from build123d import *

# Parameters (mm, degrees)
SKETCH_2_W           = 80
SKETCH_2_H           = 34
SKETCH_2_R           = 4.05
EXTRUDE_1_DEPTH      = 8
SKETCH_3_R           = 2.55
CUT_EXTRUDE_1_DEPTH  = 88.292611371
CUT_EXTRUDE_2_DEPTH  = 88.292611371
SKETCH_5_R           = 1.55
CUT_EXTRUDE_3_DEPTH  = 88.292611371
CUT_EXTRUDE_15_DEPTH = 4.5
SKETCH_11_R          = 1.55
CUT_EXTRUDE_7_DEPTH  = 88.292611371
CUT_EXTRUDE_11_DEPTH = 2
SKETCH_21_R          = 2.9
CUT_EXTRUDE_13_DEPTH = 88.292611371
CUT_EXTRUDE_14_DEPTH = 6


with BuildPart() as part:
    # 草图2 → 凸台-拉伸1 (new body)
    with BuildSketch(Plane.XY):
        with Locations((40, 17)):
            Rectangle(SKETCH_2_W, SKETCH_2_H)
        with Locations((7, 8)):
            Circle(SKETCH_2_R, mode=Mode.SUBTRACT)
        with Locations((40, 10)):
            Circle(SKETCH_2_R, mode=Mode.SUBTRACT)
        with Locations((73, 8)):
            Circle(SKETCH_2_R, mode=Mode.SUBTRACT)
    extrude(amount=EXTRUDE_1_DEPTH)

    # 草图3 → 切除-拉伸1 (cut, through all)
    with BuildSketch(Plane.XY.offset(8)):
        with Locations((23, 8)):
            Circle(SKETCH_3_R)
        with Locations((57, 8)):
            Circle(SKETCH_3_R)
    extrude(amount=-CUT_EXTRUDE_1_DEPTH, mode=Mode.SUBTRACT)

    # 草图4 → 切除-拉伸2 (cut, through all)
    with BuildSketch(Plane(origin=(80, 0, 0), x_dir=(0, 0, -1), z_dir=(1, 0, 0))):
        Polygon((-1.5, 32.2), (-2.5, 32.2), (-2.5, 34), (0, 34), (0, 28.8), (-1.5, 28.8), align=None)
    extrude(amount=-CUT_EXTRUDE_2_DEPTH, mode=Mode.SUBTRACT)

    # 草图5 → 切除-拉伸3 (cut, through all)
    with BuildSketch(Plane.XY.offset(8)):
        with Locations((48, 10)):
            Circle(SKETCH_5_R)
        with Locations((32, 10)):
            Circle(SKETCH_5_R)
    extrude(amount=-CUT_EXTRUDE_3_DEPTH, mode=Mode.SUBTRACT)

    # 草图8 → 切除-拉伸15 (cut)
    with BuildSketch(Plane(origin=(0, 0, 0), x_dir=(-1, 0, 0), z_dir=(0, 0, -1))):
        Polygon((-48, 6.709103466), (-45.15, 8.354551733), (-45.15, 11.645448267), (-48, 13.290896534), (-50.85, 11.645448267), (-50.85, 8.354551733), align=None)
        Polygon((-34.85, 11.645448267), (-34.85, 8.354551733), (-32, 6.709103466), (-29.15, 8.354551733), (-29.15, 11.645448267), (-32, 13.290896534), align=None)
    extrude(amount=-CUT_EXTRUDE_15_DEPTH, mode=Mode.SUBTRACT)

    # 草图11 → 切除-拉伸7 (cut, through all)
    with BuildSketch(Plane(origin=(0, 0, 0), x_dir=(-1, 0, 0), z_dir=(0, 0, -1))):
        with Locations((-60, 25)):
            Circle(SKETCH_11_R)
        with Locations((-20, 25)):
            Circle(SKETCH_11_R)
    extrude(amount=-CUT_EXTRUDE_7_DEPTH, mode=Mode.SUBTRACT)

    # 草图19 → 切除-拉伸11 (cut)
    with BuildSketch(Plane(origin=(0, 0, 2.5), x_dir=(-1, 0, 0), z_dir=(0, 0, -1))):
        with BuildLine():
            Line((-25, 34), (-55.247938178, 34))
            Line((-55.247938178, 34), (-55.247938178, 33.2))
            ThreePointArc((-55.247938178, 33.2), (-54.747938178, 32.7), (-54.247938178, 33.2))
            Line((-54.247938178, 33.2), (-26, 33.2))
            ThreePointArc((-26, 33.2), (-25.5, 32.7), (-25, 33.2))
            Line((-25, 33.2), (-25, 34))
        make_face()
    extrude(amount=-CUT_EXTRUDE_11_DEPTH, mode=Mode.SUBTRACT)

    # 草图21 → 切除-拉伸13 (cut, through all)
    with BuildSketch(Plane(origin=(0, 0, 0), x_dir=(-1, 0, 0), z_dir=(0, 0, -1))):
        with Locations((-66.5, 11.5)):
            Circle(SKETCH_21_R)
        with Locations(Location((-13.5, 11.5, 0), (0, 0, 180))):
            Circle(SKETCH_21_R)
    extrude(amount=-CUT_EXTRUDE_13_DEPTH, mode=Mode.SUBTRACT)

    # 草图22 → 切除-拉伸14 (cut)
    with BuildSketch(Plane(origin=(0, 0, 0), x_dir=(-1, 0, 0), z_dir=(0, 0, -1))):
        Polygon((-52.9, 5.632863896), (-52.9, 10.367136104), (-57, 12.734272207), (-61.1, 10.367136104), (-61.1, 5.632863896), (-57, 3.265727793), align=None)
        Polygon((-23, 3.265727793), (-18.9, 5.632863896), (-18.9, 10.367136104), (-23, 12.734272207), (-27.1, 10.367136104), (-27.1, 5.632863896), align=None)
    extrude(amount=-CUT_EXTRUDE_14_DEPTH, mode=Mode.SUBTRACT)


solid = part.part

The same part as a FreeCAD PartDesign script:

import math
import FreeCAD as App
import Part
import Sketcher
Q = App.Units.Quantity

doc = App.newDocument("Part")
params = doc.addObject("Spreadsheet::Sheet", "Params")
for row, (alias, value) in enumerate([
    ("sketch1_diameter", "8.1 mm"),
    ("sketch1_width", "80 mm"),
    ("sketch1_height", "34 mm"),
    ("pad1_length", "8 mm"),
    ("sketch2_diameter", "5.1 mm"),
    ("sketch3_height", "1 mm"),
    ("sketch3_width", "3.4 mm"),
    ("sketch3_width2", "5.2 mm"),
    ("sketch3_height2", "1.5 mm"),
    ("sketch4_diameter", "3.1 mm"),
    ("pocket4_length", "4.5 mm"),
    ("sketch6_diameter", "3.1 mm"),
    ("sketch7_radius", "0.5 mm"),
    ("sketch7_height", "0.8 mm"),
    ("pocket6_length", "2 mm"),
    ("sketch8_diameter", "5.8 mm"),
    ("pocket8_length", "6 mm"),
], start=1):
    params.set(f"A{row}", alias)
    params.set(f"B{row}", "=" + value)
    params.setAlias(f"B{row}", alias)

body = doc.addObject("PartDesign::Body", "Body")

sketch1 = doc.addObject("Sketcher::SketchObject", "Sketch")
body.addObject(sketch1)
sketch1.AttachmentSupport = (doc.XY_Plane, [""])
sketch1.MapMode = "FlatFace"
sketch1.addGeometry([
    Part.LineSegment(App.Vector(0, 34, 0), App.Vector(0, 0, 0)),
    Part.LineSegment(App.Vector(0, 0, 0), App.Vector(80, 0, 0)),
    Part.LineSegment(App.Vector(80, 0, 0), App.Vector(80, 34, 0)),
    Part.LineSegment(App.Vector(80, 34, 0), App.Vector(0, 34, 0)),
    Part.Circle(App.Vector(7, 8, 0), App.Vector(0, 0, 1), 4),
    Part.Circle(App.Vector(73, 8, 0), App.Vector(0, 0, 1), 4),
    Part.Circle(App.Vector(40, 10, 0), App.Vector(0, 0, 1), 4),
], False)
sketch1.addConstraint([
    Sketcher.Constraint("Coincident", 0, 2, 1, 1),
    Sketcher.Constraint("Coincident", 1, 2, 2, 1),
    Sketcher.Constraint("Coincident", 2, 2, 3, 1),
    Sketcher.Constraint("Coincident", 3, 2, 0, 1),
    Sketcher.Constraint("Vertical", 0),
    Sketcher.Constraint("Horizontal", 1),
    Sketcher.Constraint("Vertical", 2),
    Sketcher.Constraint("Horizontal", 3),
    Sketcher.Constraint("Coincident", 0, 2, -1, 1),
    Sketcher.Constraint("Equal", 4, 5),
    Sketcher.Constraint("Equal", 5, 6),
    Sketcher.Constraint("Horizontal", 4, 3, 5, 3),
    Sketcher.Constraint("Diameter", 4, 8.1),
    Sketcher.Constraint("DistanceX", 1, 1, 1, 2, 80.0),
    Sketcher.Constraint("DistanceY", 0, 2, 0, 1, 34.0),
    Sketcher.Constraint("DistanceX", -1, 1, 4, 3, 7.0),
    Sketcher.Constraint("DistanceY", -1, 1, 4, 3, 8.0),
    Sketcher.Constraint("DistanceX", -1, 1, 5, 3, 73.0),
    Sketcher.Constraint("DistanceX", -1, 1, 6, 3, 40.0),
    Sketcher.Constraint("DistanceY", -1, 1, 6, 3, 10.0),
])
sketch1.setExpression("Constraints[12]", "Params.sketch1_diameter")
sketch1.setExpression("Constraints[13]", "Params.sketch1_width")
sketch1.setExpression("Constraints[14]", "Params.sketch1_height")
pad1 = doc.addObject("PartDesign::Pad", "Pad")
body.addObject(pad1)
pad1.Profile = sketch1
pad1.setExpression("Length", "Params.pad1_length")

sketch2 = doc.addObject("Sketcher::SketchObject", "Sketch001")
body.addObject(sketch2)
sketch2.AttachmentSupport = (doc.XY_Plane, [""])
sketch2.MapMode = "FlatFace"
sketch2.AttachmentOffset = App.Placement(App.Vector(0, 0, 8), App.Rotation())
sketch2.addGeometry([
    Part.Circle(App.Vector(23, 8, 0), App.Vector(0, 0, 1), 2.5),
    Part.Circle(App.Vector(57, 8, 0), App.Vector(0, 0, 1), 2.5),
], False)
sketch2.addConstraint([
    Sketcher.Constraint("Equal", 0, 1),
    Sketcher.Constraint("Horizontal", 0, 3, 1, 3),
    Sketcher.Constraint("Diameter", 0, 5.1),
    Sketcher.Constraint("DistanceX", -1, 1, 0, 3, 23.0),
    Sketcher.Constraint("DistanceY", -1, 1, 0, 3, 8.0),
    Sketcher.Constraint("DistanceX", -1, 1, 1, 3, 57.0),
])
sketch2.setExpression("Constraints[2]", "Params.sketch2_diameter")
pocket1 = doc.addObject("PartDesign::Pocket", "Pocket")
body.addObject(pocket1)
pocket1.Profile = sketch2
pocket1.Type = "ThroughAll"

sketch3 = doc.addObject("Sketcher::SketchObject", "Sketch002")
body.addObject(sketch3)
sketch3.AttachmentSupport = (doc.YZ_Plane, [""])
sketch3.MapMode = "FlatFace"
sketch3.AttachmentOffset = App.Placement(App.Vector(0, 0, 80), App.Rotation())
sketch3.addGeometry([
    Part.LineSegment(App.Vector(32.2, 2.5, 0), App.Vector(32.2, 1.5, 0)),
    Part.LineSegment(App.Vector(32.2, 1.5, 0), App.Vector(28.8, 1.5, 0)),
    Part.LineSegment(App.Vector(28.8, 1.5, 0), App.Vector(28.8, 0, 0)),
    Part.LineSegment(App.Vector(28.8, 0, 0), App.Vector(34, 0, 0)),
    Part.LineSegment(App.Vector(34, 0, 0), App.Vector(34, 2.5, 0)),
    Part.LineSegment(App.Vector(34, 2.5, 0), App.Vector(32.2, 2.5, 0)),
], False)
sketch3.addConstraint([
    Sketcher.Constraint("Coincident", 0, 2, 1, 1),
    Sketcher.Constraint("Coincident", 1, 2, 2, 1),
    Sketcher.Constraint("Coincident", 2, 2, 3, 1),
    Sketcher.Constraint("Coincident", 3, 2, 4, 1),
    Sketcher.Constraint("Coincident", 4, 2, 5, 1),
    Sketcher.Constraint("Coincident", 5, 2, 0, 1),
    Sketcher.Constraint("Vertical", 0),
    Sketcher.Constraint("Horizontal", 1),
    Sketcher.Constraint("Vertical", 2),
    Sketcher.Constraint("Horizontal", 3),
    Sketcher.Constraint("Vertical", 4),
    Sketcher.Constraint("Horizontal", 5),
    Sketcher.Constraint("PointOnObject", 2, 2, -1),
    Sketcher.Constraint("DistanceY", 0, 2, 0, 1, 1.0),
    Sketcher.Constraint("DistanceX", 1, 2, 1, 1, 3.4),
    Sketcher.Constraint("DistanceX", 3, 1, 3, 2, 5.2),
    Sketcher.Constraint("DistanceY", 2, 2, 2, 1, 1.5),
    Sketcher.Constraint("DistanceX", -1, 1, 3, 2, 34.0),
])
sketch3.setExpression("Constraints[13]", "Params.sketch3_height")
sketch3.setExpression("Constraints[14]", "Params.sketch3_width")
sketch3.setExpression("Constraints[15]", "Params.sketch3_width2")
sketch3.setExpression("Constraints[16]", "Params.sketch3_height2")
pocket2 = doc.addObject("PartDesign::Pocket", "Pocket001")
body.addObject(pocket2)
pocket2.Profile = sketch3
pocket2.Type = "ThroughAll"

sketch4 = doc.addObject("Sketcher::SketchObject", "Sketch003")
body.addObject(sketch4)
sketch4.AttachmentSupport = (doc.XY_Plane, [""])
sketch4.MapMode = "FlatFace"
sketch4.AttachmentOffset = App.Placement(App.Vector(0, 0, 8), App.Rotation())
sketch4.addGeometry([
    Part.Circle(App.Vector(48, 10, 0), App.Vector(0, 0, 1), 1.6),
    Part.Circle(App.Vector(32, 10, 0), App.Vector(0, 0, 1), 1.6),
], False)
sketch4.addConstraint([
    Sketcher.Constraint("Equal", 0, 1),
    Sketcher.Constraint("Horizontal", 0, 3, 1, 3),
    Sketcher.Constraint("Diameter", 0, 3.1),
    Sketcher.Constraint("DistanceX", -1, 1, 0, 3, 48.0),
    Sketcher.Constraint("DistanceY", -1, 1, 0, 3, 10.0),
    Sketcher.Constraint("DistanceX", -1, 1, 1, 3, 32.0),
])
sketch4.setExpression("Constraints[2]", "Params.sketch4_diameter")
pocket3 = doc.addObject("PartDesign::Pocket", "Pocket002")
body.addObject(pocket3)
pocket3.Profile = sketch4
pocket3.Type = "ThroughAll"

sketch5 = doc.addObject("Sketcher::SketchObject", "Sketch004")
body.addObject(sketch5)
sketch5.AttachmentSupport = (doc.XY_Plane, [""])
sketch5.MapMode = "FlatFace"
sketch5.addGeometry([
    Part.LineSegment(App.Vector(48, 6.7, 0), App.Vector(45.1, 8.4, 0)),
    Part.LineSegment(App.Vector(45.1, 8.4, 0), App.Vector(45.1, 11.6, 0)),
    Part.LineSegment(App.Vector(45.1, 11.6, 0), App.Vector(48, 13.3, 0)),
    Part.LineSegment(App.Vector(48, 13.3, 0), App.Vector(50.9, 11.6, 0)),
    Part.LineSegment(App.Vector(50.9, 11.6, 0), App.Vector(50.9, 8.4, 0)),
    Part.LineSegment(App.Vector(50.9, 8.4, 0), App.Vector(48, 6.7, 0)),
    Part.LineSegment(App.Vector(34.9, 11.6, 0), App.Vector(34.9, 8.4, 0)),
    Part.LineSegment(App.Vector(34.9, 8.4, 0), App.Vector(32, 6.7, 0)),
    Part.LineSegment(App.Vector(32, 6.7, 0), App.Vector(29.1, 8.4, 0)),
    Part.LineSegment(App.Vector(29.1, 8.4, 0), App.Vector(29.1, 11.6, 0)),
    Part.LineSegment(App.Vector(29.1, 11.6, 0), App.Vector(32, 13.3, 0)),
    Part.LineSegment(App.Vector(32, 13.3, 0), App.Vector(34.9, 11.6, 0)),
], False)
sketch5.addConstraint([
    Sketcher.Constraint("Coincident", 0, 2, 1, 1),
    Sketcher.Constraint("Coincident", 1, 2, 2, 1),
    Sketcher.Constraint("Coincident", 2, 2, 3, 1),
    Sketcher.Constraint("Coincident", 3, 2, 4, 1),
    Sketcher.Constraint("Coincident", 4, 2, 5, 1),
    Sketcher.Constraint("Coincident", 5, 2, 0, 1),
    Sketcher.Constraint("Coincident", 6, 2, 7, 1),
    Sketcher.Constraint("Coincident", 7, 2, 8, 1),
    Sketcher.Constraint("Coincident", 8, 2, 9, 1),
    Sketcher.Constraint("Coincident", 9, 2, 10, 1),
    Sketcher.Constraint("Coincident", 10, 2, 11, 1),
    Sketcher.Constraint("Coincident", 11, 2, 6, 1),
    Sketcher.Constraint("Vertical", 1),
    Sketcher.Constraint("Vertical", 4),
    Sketcher.Constraint("Vertical", 6),
    Sketcher.Constraint("Vertical", 9),
    Sketcher.Constraint("Parallel", 0, 3),
    Sketcher.Constraint("Parallel", 2, 5),
    Sketcher.Constraint("Parallel", 5, 7),
    Sketcher.Constraint("Parallel", 3, 8),
    Sketcher.Constraint("Parallel", 7, 10),
    Sketcher.Constraint("Parallel", 8, 11),
    Sketcher.Constraint("Horizontal", 1, 2, 3, 2),
    Sketcher.Constraint("Horizontal", 0, 2, 4, 2),
    Sketcher.Constraint("Horizontal", 4, 2, 6, 2),
    Sketcher.Constraint("Horizontal", 5, 2, 7, 2),
    Sketcher.Constraint("Horizontal", 6, 2, 8, 2),
    Sketcher.Constraint("Horizontal", 3, 2, 9, 2),
    Sketcher.Constraint("Horizontal", 2, 2, 10, 2),
    Sketcher.Constraint("Vertical", 2, 2, 5, 2),
    Sketcher.Constraint("Angle", 0, Q("150 deg")),
    Sketcher.Constraint("DistanceX", -1, 1, 2, 2, 48.0),
    Sketcher.Constraint("DistanceX", -1, 1, 7, 2, 32.0),
    Sketcher.Constraint("DistanceX", 1, 2, 3, 2, 5.7),
    Sketcher.Constraint("DistanceY", 1, 1, 1, 2, 3.290897),
    Sketcher.Constraint("DistanceY", -1, 1, 0, 2, 8.354552),
])
pocket4 = doc.addObject("PartDesign::Pocket", "Pocket003")
body.addObject(pocket4)
pocket4.Profile = sketch5
pocket4.setExpression("Length", "Params.pocket4_length")
pocket4.Reversed = True

sketch6 = doc.addObject("Sketcher::SketchObject", "Sketch005")
body.addObject(sketch6)
sketch6.AttachmentSupport = (doc.XY_Plane, [""])
sketch6.MapMode = "FlatFace"
sketch6.addGeometry([
    Part.Circle(App.Vector(60, 25, 0), App.Vector(0, 0, 1), 1.6),
    Part.Circle(App.Vector(20, 25, 0), App.Vector(0, 0, 1), 1.6),
], False)
sketch6.addConstraint([
    Sketcher.Constraint("Equal", 0, 1),
    Sketcher.Constraint("Horizontal", 0, 3, 1, 3),
    Sketcher.Constraint("Diameter", 0, 3.1),
    Sketcher.Constraint("DistanceX", -1, 1, 0, 3, 60.0),
    Sketcher.Constraint("DistanceY", -1, 1, 0, 3, 25.0),
    Sketcher.Constraint("DistanceX", -1, 1, 1, 3, 20.0),
])
sketch6.setExpression("Constraints[2]", "Params.sketch6_diameter")
pocket5 = doc.addObject("PartDesign::Pocket", "Pocket004")
body.addObject(pocket5)
pocket5.Profile = sketch6
pocket5.Type = "ThroughAll"
pocket5.Reversed = True

sketch7 = doc.addObject("Sketcher::SketchObject", "Sketch006")
body.addObject(sketch7)
sketch7.AttachmentSupport = (doc.XY_Plane, [""])
sketch7.MapMode = "FlatFace"
sketch7.AttachmentOffset = App.Placement(App.Vector(0, 0, 2.5), App.Rotation())
sketch7.addGeometry([
    Part.LineSegment(App.Vector(25, 34, 0), App.Vector(55.2, 34, 0)),
    Part.LineSegment(App.Vector(55.2, 34, 0), App.Vector(55.2, 33.2, 0)),
    Part.ArcOfCircle(Part.Circle(App.Vector(54.7, 33.2, 0), App.Vector(0, 0, 1), 0.5), math.radians(180), math.radians(360)),
    Part.LineSegment(App.Vector(54.2, 33.2, 0), App.Vector(26, 33.2, 0)),
    Part.ArcOfCircle(Part.Circle(App.Vector(25.5, 33.2, 0), App.Vector(0, 0, 1), 0.5), math.radians(180), math.radians(360)),
    Part.LineSegment(App.Vector(25, 33.2, 0), App.Vector(25, 34, 0)),
], False)
sketch7.addConstraint([
    Sketcher.Constraint("Coincident", 0, 2, 1, 1),
    Sketcher.Constraint("Tangent", 1, 2, 2, 2),
    Sketcher.Constraint("Coincident", 2, 1, 3, 1),
    Sketcher.Constraint("Coincident", 3, 2, 4, 2),
    Sketcher.Constraint("Tangent", 4, 1, 5, 1),
    Sketcher.Constraint("Coincident", 5, 2, 0, 1),
    Sketcher.Constraint("Horizontal", 0),
    Sketcher.Constraint("Vertical", 1),
    Sketcher.Constraint("Horizontal", 3),
    Sketcher.Constraint("Vertical", 5),
    Sketcher.Constraint("Equal", 2, 4),
    Sketcher.Constraint("Horizontal", 2, 3, 4, 3),
    Sketcher.Constraint("Horizontal", 1, 2, 2, 1),
    Sketcher.Constraint("Radius", 2, 0.5),
    Sketcher.Constraint("DistanceY", 1, 2, 1, 1, 0.8),
    Sketcher.Constraint("DistanceY", -1, 1, 0, 2, 34.0),
    Sketcher.Constraint("DistanceX", -1, 1, 3, 2, 26.0),
    Sketcher.Constraint("DistanceX", 0, 1, 0, 2, 30.247938),
])
sketch7.setExpression("Constraints[13]", "Params.sketch7_radius")
sketch7.setExpression("Constraints[14]", "Params.sketch7_height")
pocket6 = doc.addObject("PartDesign::Pocket", "Pocket005")
body.addObject(pocket6)
pocket6.Profile = sketch7
pocket6.setExpression("Length", "Params.pocket6_length")
pocket6.Reversed = True

sketch8 = doc.addObject("Sketcher::SketchObject", "Sketch007")
body.addObject(sketch8)
sketch8.AttachmentSupport = (doc.XY_Plane, [""])
sketch8.MapMode = "FlatFace"
sketch8.addGeometry([
    Part.Circle(App.Vector(66.5, 11.5, 0), App.Vector(0, 0, 1), 2.9),
    Part.Circle(App.Vector(13.5, 11.5, 0), App.Vector(0, 0, 1), 2.9),
], False)
sketch8.addConstraint([
    Sketcher.Constraint("Equal", 0, 1),
    Sketcher.Constraint("Horizontal", 0, 3, 1, 3),
    Sketcher.Constraint("Diameter", 0, 5.8),
    Sketcher.Constraint("DistanceX", 1, 3, 0, 3, 53.0),
    Sketcher.Constraint("DistanceX", -1, 1, 0, 3, 66.5),
    Sketcher.Constraint("DistanceY", -1, 1, 0, 3, 11.5),
])
sketch8.setExpression("Constraints[2]", "Params.sketch8_diameter")
pocket7 = doc.addObject("PartDesign::Pocket", "Pocket006")
body.addObject(pocket7)
pocket7.Profile = sketch8
pocket7.Type = "ThroughAll"
pocket7.Reversed = True

sketch9 = doc.addObject("Sketcher::SketchObject", "Sketch008")
body.addObject(sketch9)
sketch9.AttachmentSupport = (doc.XY_Plane, [""])
sketch9.MapMode = "FlatFace"
sketch9.addGeometry([
    Part.LineSegment(App.Vector(52.9, 5.6, 0), App.Vector(52.9, 10.4, 0)),
    Part.LineSegment(App.Vector(52.9, 10.4, 0), App.Vector(57, 12.7, 0)),
    Part.LineSegment(App.Vector(57, 12.7, 0), App.Vector(61.1, 10.4, 0)),
    Part.LineSegment(App.Vector(61.1, 10.4, 0), App.Vector(61.1, 5.6, 0)),
    Part.LineSegment(App.Vector(61.1, 5.6, 0), App.Vector(57, 3.3, 0)),
    Part.LineSegment(App.Vector(57, 3.3, 0), App.Vector(52.9, 5.6, 0)),
    Part.LineSegment(App.Vector(23, 3.3, 0), App.Vector(18.9, 5.6, 0)),
    Part.LineSegment(App.Vector(18.9, 5.6, 0), App.Vector(18.9, 10.4, 0)),
    Part.LineSegment(App.Vector(18.9, 10.4, 0), App.Vector(23, 12.7, 0)),
    Part.LineSegment(App.Vector(23, 12.7, 0), App.Vector(27.1, 10.4, 0)),
    Part.LineSegment(App.Vector(27.1, 10.4, 0), App.Vector(27.1, 5.6, 0)),
    Part.LineSegment(App.Vector(27.1, 5.6, 0), App.Vector(23, 3.3, 0)),
], False)
sketch9.addConstraint([
    Sketcher.Constraint("Coincident", 0, 2, 1, 1),
    Sketcher.Constraint("Coincident", 1, 2, 2, 1),
    Sketcher.Constraint("Coincident", 2, 2, 3, 1),
    Sketcher.Constraint("Coincident", 3, 2, 4, 1),
    Sketcher.Constraint("Coincident", 4, 2, 5, 1),
    Sketcher.Constraint("Coincident", 5, 2, 0, 1),
    Sketcher.Constraint("Coincident", 6, 2, 7, 1),
    Sketcher.Constraint("Coincident", 7, 2, 8, 1),
    Sketcher.Constraint("Coincident", 8, 2, 9, 1),
    Sketcher.Constraint("Coincident", 9, 2, 10, 1),
    Sketcher.Constraint("Coincident", 10, 2, 11, 1),
    Sketcher.Constraint("Coincident", 11, 2, 6, 1),
    Sketcher.Constraint("Vertical", 0),
    Sketcher.Constraint("Vertical", 3),
    Sketcher.Constraint("Vertical", 7),
    Sketcher.Constraint("Vertical", 10),
    Sketcher.Constraint("Parallel", 1, 4),
    Sketcher.Constraint("Parallel", 2, 5),
    Sketcher.Constraint("Parallel", 5, 6),
    Sketcher.Constraint("Parallel", 4, 8),
    Sketcher.Constraint("Parallel", 6, 9),
    Sketcher.Constraint("Parallel", 8, 11),
    Sketcher.Constraint("Horizontal", 0, 2, 2, 2),
    Sketcher.Constraint("Horizontal", 3, 2, 5, 2),
    Sketcher.Constraint("Horizontal", 5, 2, 6, 2),
    Sketcher.Constraint("Horizontal", 2, 2, 7, 2),
    Sketcher.Constraint("Horizontal", 1, 2, 8, 2),
    Sketcher.Constraint("Horizontal", 7, 2, 9, 2),
    Sketcher.Constraint("Horizontal", 6, 2, 10, 2),
    Sketcher.Constraint("Vertical", 1, 2, 4, 2),
    Sketcher.Constraint("Angle", 1, Q("30 deg")),
    Sketcher.Constraint("DistanceX", -1, 1, 1, 2, 57.0),
    Sketcher.Constraint("DistanceX", -1, 1, 8, 2, 23.0),
    Sketcher.Constraint("DistanceX", -1, 1, 0, 2, 52.9),
    Sketcher.Constraint("DistanceY", 0, 1, 0, 2, 4.734272),
    Sketcher.Constraint("DistanceY", -1, 1, 0, 2, 10.367136),
])
pocket8 = doc.addObject("PartDesign::Pocket", "Pocket007")
body.addObject(pocket8)
pocket8.Profile = sketch9
pocket8.setExpression("Length", "Params.pocket8_length")
pocket8.Reversed = True

doc.recompute()
